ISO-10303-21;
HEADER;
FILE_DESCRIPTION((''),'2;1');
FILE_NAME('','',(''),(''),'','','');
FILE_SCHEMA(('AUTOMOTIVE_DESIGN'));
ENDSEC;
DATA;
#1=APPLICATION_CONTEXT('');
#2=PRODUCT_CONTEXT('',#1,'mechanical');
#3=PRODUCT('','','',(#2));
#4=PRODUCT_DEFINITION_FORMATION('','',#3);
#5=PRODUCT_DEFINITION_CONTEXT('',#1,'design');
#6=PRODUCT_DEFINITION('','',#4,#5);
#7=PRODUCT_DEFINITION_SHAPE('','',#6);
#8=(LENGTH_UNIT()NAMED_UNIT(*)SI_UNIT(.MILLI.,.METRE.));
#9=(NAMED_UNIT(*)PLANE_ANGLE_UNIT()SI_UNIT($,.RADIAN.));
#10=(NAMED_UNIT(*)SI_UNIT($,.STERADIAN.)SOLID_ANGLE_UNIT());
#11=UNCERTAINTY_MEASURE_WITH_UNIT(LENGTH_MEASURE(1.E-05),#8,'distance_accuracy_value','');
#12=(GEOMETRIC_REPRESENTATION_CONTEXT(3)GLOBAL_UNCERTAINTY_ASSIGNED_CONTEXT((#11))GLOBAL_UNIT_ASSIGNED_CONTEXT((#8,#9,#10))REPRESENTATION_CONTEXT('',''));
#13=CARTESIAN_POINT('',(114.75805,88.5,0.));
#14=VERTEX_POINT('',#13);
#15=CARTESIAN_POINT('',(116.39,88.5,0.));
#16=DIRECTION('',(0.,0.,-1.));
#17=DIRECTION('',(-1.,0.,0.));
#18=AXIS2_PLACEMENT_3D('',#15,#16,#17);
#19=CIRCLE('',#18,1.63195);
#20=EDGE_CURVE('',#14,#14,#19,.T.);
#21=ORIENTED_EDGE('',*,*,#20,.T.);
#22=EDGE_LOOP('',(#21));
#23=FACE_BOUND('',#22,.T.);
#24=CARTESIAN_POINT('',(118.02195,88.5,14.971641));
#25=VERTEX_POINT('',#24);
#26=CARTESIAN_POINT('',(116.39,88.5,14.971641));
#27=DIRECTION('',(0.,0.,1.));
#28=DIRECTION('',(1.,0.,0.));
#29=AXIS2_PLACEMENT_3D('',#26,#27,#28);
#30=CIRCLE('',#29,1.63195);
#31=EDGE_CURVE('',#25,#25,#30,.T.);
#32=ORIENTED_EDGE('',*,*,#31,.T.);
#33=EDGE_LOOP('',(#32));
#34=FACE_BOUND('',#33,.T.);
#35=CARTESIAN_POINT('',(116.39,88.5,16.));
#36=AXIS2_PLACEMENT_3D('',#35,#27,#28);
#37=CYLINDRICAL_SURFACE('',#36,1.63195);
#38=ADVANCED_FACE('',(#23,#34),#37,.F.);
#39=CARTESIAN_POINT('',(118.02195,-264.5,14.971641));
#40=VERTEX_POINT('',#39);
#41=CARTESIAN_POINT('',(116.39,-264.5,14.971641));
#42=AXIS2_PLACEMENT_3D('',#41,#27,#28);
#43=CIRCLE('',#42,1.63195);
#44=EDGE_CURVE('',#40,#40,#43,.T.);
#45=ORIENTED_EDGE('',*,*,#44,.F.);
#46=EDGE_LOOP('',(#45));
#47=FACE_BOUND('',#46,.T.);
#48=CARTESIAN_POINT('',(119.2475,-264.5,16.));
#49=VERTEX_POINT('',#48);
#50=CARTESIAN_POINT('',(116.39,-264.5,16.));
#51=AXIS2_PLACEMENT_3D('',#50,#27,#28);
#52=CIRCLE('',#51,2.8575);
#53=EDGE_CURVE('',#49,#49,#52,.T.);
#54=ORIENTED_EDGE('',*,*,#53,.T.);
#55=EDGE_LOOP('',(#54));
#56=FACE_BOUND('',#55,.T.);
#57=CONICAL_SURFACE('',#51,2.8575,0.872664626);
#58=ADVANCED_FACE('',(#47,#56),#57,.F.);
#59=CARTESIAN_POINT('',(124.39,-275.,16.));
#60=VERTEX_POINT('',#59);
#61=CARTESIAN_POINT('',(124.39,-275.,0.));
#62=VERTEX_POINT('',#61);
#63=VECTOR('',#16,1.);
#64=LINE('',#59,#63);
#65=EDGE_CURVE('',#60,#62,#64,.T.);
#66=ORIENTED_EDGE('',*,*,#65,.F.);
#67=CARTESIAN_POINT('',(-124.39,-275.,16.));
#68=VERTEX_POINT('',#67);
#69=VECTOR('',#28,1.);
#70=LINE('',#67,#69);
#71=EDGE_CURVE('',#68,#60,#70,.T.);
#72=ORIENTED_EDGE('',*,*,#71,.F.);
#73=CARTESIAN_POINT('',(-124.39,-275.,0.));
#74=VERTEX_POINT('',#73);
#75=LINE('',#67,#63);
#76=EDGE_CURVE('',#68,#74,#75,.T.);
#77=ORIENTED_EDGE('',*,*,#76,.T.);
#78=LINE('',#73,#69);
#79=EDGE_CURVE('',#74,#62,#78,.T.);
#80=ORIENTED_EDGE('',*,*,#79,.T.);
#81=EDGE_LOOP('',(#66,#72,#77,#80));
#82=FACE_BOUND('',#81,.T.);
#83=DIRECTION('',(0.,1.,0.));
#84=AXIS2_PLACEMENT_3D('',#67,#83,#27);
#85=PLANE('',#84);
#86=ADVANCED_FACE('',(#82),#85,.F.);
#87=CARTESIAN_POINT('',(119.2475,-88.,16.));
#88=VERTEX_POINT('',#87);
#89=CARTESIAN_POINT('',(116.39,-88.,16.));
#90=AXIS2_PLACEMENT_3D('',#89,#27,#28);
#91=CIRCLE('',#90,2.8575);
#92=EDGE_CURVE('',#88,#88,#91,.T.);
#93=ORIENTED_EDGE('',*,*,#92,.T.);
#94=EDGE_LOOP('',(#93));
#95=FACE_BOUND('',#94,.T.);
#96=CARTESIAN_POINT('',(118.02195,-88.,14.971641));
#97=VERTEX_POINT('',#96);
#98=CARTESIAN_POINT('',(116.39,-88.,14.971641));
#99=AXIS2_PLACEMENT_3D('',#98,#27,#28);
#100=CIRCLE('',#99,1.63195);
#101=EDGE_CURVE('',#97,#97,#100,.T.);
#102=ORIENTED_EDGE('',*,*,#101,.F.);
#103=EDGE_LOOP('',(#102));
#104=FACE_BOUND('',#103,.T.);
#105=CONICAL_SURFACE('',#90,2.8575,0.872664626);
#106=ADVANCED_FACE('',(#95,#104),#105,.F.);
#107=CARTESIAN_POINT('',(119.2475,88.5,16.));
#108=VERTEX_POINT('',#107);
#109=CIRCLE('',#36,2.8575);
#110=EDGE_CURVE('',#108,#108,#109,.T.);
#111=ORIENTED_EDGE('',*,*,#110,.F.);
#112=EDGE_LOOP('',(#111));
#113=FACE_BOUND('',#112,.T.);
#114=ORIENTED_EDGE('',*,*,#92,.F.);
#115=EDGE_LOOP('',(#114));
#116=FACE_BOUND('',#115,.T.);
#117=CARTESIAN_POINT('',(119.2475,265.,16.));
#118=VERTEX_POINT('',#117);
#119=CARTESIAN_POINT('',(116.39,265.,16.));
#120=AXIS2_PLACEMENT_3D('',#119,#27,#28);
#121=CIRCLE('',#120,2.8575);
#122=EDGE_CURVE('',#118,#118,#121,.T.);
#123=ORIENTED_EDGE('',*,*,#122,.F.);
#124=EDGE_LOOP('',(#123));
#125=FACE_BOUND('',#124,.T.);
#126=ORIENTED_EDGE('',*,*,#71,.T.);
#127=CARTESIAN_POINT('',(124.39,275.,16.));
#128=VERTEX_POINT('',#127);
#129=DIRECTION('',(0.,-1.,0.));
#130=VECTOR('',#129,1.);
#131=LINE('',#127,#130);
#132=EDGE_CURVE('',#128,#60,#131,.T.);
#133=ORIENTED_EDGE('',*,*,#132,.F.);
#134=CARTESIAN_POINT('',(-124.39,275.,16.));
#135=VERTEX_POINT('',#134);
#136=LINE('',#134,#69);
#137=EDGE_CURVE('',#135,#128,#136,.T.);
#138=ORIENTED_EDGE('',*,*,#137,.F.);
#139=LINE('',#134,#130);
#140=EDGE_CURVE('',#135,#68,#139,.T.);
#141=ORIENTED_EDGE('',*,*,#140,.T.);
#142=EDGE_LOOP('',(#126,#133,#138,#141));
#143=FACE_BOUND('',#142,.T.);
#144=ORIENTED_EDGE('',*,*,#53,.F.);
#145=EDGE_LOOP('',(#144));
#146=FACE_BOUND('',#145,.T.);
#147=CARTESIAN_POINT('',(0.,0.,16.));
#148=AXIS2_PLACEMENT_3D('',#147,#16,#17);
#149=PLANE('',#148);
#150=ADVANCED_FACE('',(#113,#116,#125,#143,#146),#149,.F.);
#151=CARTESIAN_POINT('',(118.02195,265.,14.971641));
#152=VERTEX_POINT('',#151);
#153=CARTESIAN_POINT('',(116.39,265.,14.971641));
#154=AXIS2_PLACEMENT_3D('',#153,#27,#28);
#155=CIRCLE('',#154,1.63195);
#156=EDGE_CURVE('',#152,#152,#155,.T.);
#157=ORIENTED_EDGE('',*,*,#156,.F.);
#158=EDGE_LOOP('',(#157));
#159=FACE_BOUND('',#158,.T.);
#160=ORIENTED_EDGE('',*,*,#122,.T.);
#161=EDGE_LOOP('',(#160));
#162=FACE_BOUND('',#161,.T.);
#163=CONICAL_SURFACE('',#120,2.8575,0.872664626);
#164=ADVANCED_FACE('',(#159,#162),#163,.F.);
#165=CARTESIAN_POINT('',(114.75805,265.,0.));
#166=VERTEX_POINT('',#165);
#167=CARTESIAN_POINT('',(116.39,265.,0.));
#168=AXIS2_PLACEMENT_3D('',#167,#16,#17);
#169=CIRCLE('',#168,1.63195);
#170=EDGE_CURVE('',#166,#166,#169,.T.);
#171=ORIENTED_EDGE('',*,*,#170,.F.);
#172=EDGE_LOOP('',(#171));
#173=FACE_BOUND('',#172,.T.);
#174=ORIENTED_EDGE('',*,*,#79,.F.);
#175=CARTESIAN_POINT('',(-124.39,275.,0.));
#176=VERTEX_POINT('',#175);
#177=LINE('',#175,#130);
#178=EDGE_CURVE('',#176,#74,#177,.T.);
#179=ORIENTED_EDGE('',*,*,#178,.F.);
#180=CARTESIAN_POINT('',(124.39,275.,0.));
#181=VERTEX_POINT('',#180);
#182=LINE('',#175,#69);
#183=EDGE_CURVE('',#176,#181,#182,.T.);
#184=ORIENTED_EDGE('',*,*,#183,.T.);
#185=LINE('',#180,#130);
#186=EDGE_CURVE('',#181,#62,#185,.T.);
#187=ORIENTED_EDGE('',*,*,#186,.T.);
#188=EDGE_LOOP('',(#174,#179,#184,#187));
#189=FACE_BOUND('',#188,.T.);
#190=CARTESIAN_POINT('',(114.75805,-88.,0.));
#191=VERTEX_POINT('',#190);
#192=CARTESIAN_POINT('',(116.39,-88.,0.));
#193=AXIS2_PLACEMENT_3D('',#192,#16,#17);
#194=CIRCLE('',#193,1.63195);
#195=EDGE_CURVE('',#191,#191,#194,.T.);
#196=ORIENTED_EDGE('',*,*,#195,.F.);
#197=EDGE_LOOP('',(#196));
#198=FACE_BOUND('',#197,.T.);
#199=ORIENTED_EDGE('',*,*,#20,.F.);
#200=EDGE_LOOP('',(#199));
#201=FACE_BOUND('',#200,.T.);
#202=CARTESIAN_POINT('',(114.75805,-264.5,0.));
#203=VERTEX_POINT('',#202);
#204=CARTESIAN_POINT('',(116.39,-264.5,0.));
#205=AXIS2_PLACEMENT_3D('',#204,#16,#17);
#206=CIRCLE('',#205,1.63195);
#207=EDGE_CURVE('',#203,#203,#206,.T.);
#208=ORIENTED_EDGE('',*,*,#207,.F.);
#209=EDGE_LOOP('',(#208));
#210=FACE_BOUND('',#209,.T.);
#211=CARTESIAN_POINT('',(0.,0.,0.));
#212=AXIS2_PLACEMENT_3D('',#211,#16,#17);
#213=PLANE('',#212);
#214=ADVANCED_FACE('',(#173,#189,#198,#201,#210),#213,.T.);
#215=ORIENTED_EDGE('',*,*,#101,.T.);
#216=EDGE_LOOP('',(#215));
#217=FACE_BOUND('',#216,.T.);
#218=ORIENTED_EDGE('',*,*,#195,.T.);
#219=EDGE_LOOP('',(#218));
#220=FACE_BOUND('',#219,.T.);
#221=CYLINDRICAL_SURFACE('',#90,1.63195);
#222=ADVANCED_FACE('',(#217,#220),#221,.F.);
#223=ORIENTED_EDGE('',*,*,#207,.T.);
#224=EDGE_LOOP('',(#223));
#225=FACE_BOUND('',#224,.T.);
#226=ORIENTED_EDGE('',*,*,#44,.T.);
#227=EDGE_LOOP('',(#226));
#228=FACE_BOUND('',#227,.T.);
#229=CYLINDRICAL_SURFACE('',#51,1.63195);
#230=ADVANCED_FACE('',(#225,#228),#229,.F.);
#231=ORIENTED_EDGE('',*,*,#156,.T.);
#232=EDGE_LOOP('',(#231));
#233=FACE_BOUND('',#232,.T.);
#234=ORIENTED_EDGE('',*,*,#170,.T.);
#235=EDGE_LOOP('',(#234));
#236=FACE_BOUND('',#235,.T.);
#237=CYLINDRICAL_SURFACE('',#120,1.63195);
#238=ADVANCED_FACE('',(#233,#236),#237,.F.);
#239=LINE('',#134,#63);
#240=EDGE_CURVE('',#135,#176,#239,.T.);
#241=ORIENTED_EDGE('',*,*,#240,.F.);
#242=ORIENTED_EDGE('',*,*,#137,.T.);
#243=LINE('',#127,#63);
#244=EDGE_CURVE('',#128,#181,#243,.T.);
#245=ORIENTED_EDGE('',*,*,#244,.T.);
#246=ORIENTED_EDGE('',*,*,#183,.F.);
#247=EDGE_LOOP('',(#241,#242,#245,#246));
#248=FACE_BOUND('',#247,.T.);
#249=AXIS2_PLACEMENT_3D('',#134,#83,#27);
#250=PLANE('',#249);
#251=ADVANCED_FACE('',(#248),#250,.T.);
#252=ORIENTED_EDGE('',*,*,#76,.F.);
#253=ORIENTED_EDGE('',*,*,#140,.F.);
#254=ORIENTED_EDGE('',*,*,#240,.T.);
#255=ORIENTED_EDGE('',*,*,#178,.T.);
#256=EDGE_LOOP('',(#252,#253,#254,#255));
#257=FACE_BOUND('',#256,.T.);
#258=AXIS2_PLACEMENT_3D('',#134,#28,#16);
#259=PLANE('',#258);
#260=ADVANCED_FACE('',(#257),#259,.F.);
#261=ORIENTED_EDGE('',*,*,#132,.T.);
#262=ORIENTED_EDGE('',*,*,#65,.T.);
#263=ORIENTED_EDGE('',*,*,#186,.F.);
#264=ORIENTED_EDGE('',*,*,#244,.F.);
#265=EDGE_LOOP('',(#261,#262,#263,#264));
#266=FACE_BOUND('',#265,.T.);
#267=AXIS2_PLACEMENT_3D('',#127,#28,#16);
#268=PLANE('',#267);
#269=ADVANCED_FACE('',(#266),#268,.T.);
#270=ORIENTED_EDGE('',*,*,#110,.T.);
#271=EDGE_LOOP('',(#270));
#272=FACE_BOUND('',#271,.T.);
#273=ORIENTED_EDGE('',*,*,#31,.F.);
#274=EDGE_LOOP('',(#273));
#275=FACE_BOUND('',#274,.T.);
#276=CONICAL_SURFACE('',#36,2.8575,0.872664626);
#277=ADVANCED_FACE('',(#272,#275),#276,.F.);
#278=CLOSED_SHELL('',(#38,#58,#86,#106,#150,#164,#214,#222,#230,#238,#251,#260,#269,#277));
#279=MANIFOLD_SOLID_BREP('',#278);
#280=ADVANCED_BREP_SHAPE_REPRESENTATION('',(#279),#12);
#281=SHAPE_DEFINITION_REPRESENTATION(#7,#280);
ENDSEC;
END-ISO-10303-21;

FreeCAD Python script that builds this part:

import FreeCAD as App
import Part
import Sketcher

V = App.Vector


def add_polygon(sketch, points):
    """Adds a closed chain of lines whose ends are joined by coincident constraints."""
    first, n = sketch.GeometryCount, len(points)
    for a, b in zip(points, points[1:] + points[:1]):
        sketch.addGeometry(Part.LineSegment(App.Vector(*a, 0), App.Vector(*b, 0)), False)
    for i in range(n):
        sketch.addConstraint(Sketcher.Constraint("Coincident", first + i, 2, first + (i + 1) % n, 1))

doc = App.newDocument("Part")
body = doc.addObject("PartDesign::Body", "Body")

# Sketch on XY plane
sketch1 = body.newObject("Sketcher::SketchObject", "Sketch")
sketch1.AttachmentSupport = (doc.getObject("XY_Plane"), [""])
sketch1.MapMode = "FlatFace"
add_polygon(sketch1, [(-124, 275), (-124, -275), (124, -275), (124, 275)])  # lines 0-3
sketch1.addConstraint([
    Sketcher.Constraint("Vertical", 0),
    Sketcher.Constraint("Horizontal", 1),
    Sketcher.Constraint("Vertical", 2),
    Sketcher.Constraint("Horizontal", 3),
    Sketcher.Constraint("Symmetric", 0, 2, 2, 2, -1, 1),
    Sketcher.Constraint("DistanceY", 0, 2, 0, 1, 550.0),
    Sketcher.Constraint("DistanceX", 1, 1, 1, 2, 248.78),
])
pad1 = body.newObject("PartDesign::Pad", "Pad")
pad1.Profile = sketch1
pad1.Length = 16

# Sketch on XY plane
sketch2 = body.newObject("Sketcher::SketchObject", "Sketch001")
sketch2.AttachmentSupport = (doc.getObject("XY_Plane"), [""])
sketch2.MapMode = "FlatFace"
sketch2.AttachmentOffset = App.Placement(V(0, 0, 16), App.Rotation())
sketch2.addGeometry(Part.Circle(V(116.4, -264.5, 0), V(0, 0, 1), 1.6), False)
sketch2.addConstraint([
    Sketcher.Constraint("Diameter", 0, 3.2639),
    Sketcher.Constraint("DistanceY", 0, 3, -1, 1, 264.5),
    Sketcher.Constraint("DistanceX", -1, 1, 0, 3, 116.39),
])
doc.recompute()
hole = body.newObject("PartDesign::Hole", "Hole")
hole.Profile = sketch2
hole.ThreadType = "None"
hole.Diameter = 3.2639
hole.DepthType = "Dimension"
hole.Depth = 16
hole.DrillPoint = "Flat"
hole.HoleCutType = "Countersink"
hole.HoleCutDiameter = 5.715
hole.HoleCutCountersinkAngle = 100
doc.recompute()

linearpattern = body.newObject("PartDesign::LinearPattern", "LinearPattern")
linearpattern.Originals = [hole]
linearpattern.Direction = (doc.getObject("Y_Axis"), [""])
linearpattern.Mode = "offset"
linearpattern.Offset = 176.5
linearpattern.Occurrences = 4
body.Tip = linearpattern

doc.recompute()
